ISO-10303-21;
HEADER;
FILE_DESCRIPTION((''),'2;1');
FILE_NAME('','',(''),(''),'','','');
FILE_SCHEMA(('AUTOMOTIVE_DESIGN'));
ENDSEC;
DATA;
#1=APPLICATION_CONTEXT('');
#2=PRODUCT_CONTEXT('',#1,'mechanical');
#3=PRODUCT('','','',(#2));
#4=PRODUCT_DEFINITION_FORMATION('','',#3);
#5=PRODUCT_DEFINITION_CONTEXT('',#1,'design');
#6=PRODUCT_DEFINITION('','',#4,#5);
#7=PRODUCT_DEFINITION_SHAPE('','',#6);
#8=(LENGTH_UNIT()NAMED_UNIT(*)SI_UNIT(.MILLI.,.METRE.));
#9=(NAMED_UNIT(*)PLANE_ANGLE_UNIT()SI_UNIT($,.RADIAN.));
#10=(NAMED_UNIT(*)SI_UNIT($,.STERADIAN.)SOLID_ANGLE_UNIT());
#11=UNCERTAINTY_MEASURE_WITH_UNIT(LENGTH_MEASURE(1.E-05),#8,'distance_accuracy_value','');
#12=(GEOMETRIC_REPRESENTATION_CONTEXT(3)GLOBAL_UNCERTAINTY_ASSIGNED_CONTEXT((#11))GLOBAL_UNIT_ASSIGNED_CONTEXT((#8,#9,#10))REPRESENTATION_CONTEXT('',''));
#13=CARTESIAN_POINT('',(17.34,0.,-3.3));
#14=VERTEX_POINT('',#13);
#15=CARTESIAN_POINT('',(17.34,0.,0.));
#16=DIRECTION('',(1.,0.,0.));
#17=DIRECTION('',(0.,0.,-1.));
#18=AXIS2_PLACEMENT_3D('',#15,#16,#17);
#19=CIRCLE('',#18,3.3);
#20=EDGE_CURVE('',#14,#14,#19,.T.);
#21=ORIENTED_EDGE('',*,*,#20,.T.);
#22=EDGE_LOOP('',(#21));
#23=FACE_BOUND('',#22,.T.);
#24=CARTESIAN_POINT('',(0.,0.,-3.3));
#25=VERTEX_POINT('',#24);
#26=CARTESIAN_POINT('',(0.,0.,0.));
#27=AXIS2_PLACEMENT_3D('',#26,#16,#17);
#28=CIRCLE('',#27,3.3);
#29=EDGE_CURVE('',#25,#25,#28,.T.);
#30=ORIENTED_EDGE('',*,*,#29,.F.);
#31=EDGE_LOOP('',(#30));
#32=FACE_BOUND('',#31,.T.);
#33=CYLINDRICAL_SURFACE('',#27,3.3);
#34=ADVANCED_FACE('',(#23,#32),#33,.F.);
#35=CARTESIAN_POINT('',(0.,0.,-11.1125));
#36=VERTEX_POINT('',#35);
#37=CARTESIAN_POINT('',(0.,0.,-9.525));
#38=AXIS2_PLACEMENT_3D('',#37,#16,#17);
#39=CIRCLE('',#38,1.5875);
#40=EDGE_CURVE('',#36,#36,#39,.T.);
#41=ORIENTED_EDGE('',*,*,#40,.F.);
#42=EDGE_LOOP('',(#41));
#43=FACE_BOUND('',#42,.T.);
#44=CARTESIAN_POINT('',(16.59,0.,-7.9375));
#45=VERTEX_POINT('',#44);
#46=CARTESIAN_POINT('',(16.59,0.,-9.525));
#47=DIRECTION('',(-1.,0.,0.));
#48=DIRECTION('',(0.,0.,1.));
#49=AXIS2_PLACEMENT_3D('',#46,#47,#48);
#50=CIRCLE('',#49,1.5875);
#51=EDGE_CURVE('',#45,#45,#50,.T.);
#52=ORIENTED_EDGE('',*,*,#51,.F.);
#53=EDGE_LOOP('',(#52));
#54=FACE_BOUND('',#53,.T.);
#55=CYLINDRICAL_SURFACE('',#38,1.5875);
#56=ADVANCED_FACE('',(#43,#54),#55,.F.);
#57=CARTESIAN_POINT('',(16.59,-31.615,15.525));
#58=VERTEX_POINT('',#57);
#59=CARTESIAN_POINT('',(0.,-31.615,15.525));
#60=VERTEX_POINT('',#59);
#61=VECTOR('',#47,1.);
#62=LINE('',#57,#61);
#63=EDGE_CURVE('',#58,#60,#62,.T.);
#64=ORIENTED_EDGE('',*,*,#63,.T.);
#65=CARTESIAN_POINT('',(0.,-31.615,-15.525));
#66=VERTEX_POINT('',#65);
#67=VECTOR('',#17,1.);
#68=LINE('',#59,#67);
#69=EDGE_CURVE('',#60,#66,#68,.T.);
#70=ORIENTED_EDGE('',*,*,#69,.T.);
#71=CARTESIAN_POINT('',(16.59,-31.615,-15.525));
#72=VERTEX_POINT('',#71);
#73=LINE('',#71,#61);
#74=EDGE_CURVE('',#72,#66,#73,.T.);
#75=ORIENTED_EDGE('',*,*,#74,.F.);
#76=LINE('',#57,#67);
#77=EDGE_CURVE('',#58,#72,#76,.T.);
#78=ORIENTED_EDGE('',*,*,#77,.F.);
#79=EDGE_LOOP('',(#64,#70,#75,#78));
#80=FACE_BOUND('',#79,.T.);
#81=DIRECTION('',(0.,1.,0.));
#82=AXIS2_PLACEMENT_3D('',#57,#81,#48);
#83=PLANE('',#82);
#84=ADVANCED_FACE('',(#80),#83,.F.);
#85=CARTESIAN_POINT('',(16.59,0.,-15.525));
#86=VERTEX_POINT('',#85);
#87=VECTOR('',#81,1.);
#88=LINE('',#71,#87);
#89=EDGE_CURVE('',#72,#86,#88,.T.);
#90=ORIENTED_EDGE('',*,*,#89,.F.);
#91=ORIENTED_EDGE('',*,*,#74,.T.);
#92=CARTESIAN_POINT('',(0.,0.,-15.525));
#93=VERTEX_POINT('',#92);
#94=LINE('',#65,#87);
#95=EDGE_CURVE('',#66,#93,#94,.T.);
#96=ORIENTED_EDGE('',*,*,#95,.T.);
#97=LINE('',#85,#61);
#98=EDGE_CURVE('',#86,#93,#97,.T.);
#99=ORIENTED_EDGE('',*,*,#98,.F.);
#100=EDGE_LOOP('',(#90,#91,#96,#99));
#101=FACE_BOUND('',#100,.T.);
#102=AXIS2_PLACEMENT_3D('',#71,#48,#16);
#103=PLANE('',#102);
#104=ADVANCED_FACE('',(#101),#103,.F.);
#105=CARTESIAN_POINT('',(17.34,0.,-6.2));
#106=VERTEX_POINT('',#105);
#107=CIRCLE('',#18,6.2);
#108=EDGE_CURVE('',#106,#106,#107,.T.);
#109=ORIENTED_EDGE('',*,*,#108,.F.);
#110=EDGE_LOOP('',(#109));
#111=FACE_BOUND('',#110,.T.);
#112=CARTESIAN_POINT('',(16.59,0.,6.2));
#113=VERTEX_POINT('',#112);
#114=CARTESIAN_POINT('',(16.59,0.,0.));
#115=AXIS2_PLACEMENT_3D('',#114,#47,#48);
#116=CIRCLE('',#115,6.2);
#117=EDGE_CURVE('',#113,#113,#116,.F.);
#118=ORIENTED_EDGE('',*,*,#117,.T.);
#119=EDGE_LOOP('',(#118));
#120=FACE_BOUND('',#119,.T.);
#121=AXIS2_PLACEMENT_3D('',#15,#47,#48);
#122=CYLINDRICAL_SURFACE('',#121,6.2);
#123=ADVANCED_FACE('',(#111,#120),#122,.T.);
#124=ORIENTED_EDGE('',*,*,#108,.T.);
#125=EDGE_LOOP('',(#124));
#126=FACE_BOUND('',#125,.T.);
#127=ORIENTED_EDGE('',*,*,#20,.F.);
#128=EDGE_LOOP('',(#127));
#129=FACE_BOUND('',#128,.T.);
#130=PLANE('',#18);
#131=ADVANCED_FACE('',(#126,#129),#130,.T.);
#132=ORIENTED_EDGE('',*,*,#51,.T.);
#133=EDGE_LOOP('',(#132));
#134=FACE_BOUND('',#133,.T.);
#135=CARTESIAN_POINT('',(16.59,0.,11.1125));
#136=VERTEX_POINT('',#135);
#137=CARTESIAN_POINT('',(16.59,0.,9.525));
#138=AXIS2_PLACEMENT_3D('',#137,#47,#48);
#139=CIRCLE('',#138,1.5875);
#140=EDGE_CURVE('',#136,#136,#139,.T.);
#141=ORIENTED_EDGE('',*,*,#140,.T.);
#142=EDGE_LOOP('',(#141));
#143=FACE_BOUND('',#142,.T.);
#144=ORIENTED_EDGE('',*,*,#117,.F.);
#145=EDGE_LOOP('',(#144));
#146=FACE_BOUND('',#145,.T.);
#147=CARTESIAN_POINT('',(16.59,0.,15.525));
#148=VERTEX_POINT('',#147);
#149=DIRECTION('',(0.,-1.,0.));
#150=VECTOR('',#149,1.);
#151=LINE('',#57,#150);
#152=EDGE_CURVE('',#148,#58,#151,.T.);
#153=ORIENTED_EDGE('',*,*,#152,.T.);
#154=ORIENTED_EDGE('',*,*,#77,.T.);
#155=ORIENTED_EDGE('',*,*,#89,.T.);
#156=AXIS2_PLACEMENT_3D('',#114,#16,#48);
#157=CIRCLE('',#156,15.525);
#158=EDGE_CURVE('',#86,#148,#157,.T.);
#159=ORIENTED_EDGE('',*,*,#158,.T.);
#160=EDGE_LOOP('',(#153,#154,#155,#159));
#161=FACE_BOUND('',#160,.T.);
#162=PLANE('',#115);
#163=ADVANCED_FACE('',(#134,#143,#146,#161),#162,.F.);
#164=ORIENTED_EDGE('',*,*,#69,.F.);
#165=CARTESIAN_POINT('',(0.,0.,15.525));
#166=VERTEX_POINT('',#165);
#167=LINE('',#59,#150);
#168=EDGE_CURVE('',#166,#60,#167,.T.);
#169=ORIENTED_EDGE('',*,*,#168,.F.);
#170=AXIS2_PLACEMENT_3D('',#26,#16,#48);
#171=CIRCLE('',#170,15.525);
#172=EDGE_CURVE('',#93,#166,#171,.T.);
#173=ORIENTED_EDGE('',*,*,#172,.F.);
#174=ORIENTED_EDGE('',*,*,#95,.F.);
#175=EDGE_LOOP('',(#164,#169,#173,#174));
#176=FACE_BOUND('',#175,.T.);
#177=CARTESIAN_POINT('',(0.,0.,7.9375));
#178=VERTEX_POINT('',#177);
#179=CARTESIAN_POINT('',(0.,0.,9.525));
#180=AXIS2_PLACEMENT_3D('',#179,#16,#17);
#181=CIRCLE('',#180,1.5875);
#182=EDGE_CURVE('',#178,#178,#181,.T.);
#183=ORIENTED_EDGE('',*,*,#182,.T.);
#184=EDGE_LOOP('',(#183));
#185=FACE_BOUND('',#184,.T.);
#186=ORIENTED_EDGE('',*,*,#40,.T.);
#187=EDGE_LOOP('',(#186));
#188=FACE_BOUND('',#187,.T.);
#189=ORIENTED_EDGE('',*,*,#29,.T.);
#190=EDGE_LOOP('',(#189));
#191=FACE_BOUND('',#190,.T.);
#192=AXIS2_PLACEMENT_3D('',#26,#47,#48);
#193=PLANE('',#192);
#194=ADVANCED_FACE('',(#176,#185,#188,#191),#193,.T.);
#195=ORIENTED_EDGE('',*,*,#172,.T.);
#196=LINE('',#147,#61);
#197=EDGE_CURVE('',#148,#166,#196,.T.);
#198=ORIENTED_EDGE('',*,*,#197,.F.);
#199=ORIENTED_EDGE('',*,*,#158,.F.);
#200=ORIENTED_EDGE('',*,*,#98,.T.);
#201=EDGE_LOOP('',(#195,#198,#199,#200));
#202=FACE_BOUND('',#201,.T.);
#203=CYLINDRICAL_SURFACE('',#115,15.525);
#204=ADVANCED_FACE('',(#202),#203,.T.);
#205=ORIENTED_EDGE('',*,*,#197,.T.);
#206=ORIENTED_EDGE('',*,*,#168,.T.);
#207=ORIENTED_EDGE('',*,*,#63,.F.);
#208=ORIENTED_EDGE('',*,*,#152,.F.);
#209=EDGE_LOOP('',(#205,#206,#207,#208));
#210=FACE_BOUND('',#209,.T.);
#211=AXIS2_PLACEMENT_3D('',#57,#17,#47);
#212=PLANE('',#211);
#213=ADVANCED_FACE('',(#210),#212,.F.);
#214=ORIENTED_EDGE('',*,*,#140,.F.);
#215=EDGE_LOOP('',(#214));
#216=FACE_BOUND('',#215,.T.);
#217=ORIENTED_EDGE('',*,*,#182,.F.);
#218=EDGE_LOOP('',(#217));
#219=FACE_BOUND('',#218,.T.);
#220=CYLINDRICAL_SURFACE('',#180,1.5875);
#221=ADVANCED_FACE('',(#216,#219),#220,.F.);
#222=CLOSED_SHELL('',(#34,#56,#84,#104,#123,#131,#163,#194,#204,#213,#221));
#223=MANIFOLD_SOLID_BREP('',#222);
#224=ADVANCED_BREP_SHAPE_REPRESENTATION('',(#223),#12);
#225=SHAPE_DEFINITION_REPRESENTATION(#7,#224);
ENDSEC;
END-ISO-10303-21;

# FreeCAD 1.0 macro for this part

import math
import FreeCAD as App
import Part
import Sketcher
from FreeCAD import Vector

doc = App.newDocument("Part")
body = doc.addObject("PartDesign::Body", "Body")

sketch1 = doc.addObject("Sketcher::SketchObject", "Sketch")
body.addObject(sketch1)
sketch1.AttachmentSupport = (doc.YZ_Plane, [""])
sketch1.MapMode = "FlatFace"
sketch1.addGeometry(Part.LineSegment(Vector(-31.615, 15.525, 0), Vector(-31.615, -15.525, 0)), False)
sketch1.addGeometry(Part.LineSegment(Vector(-31.615, -15.525, 0), Vector(0, -15.525, 0)), False)
sketch1.addGeometry(Part.ArcOfCircle(Part.Circle(Vector(0, 0, 0), Vector(0, 0, 1), 15.525), math.radians(-90), math.radians(90)), False)
sketch1.addGeometry(Part.LineSegment(Vector(0, 15.525, 0), Vector(-31.615, 15.525, 0)), False)
sketch1.addConstraint(Sketcher.Constraint("Coincident", 0, 2, 1, 1))
sketch1.addConstraint(Sketcher.Constraint("Tangent", 1, 2, 2, 1))
sketch1.addConstraint(Sketcher.Constraint("Tangent", 2, 2, 3, 1))
sketch1.addConstraint(Sketcher.Constraint("Coincident", 3, 2, 0, 1))
sketch1.addConstraint(Sketcher.Constraint("Vertical", 0))
sketch1.addConstraint(Sketcher.Constraint("Horizontal", 1))
sketch1.addConstraint(Sketcher.Constraint("Horizontal", 3))
sketch1.addConstraint(Sketcher.Constraint("Coincident", 2, 3, -1, 1))
sketch1.addConstraint(Sketcher.Constraint("Radius", 2, 15.525))
sketch1.addConstraint(Sketcher.Constraint("DistanceX", 1, 1, 1, 2, 31.615))
pad1 = doc.addObject("PartDesign::Pad", "Pad")
body.addObject(pad1)
pad1.Profile = sketch1
pad1.Length = 16.59

sketch2 = doc.addObject("Sketcher::SketchObject", "Sketch001")
body.addObject(sketch2)
sketch2.AttachmentSupport = (doc.YZ_Plane, [""])
sketch2.MapMode = "FlatFace"
sketch2.AttachmentOffset = App.Placement(Vector(0, 0, 16.59), App.Rotation())
sketch2.addGeometry(Part.Circle(Vector(0, 0, 0), Vector(0, 0, 1), 6.2), False)
sketch2.addConstraint(Sketcher.Constraint("Coincident", 0, 3, -1, 1))
sketch2.addConstraint(Sketcher.Constraint("Diameter", 0, 12.4))
pad2 = doc.addObject("PartDesign::Pad", "Pad001")
body.addObject(pad2)
pad2.Profile = sketch2
pad2.Length = 0.75

sketch3 = doc.addObject("Sketcher::SketchObject", "Sketch002")
body.addObject(sketch3)
sketch3.AttachmentSupport = (doc.YZ_Plane, [""])
sketch3.MapMode = "FlatFace"
sketch3.AttachmentOffset = App.Placement(Vector(0, 0, 17.34), App.Rotation())
sketch3.addGeometry(Part.Circle(Vector(0, 0, 0), Vector(0, 0, 1), 3.3), False)
sketch3.addGeometry(Part.Circle(Vector(0, 9.525, 0), Vector(0, 0, 1), 1.5875), False)
sketch3.addGeometry(Part.Circle(Vector(0, -9.525, 0), Vector(0, 0, 1), 1.5875), False)
sketch3.addConstraint(Sketcher.Constraint("Coincident", 0, 3, -1, 1))
sketch3.addConstraint(Sketcher.Constraint("Equal", 1, 2))
sketch3.addConstraint(Sketcher.Constraint("Symmetric", 1, 3, 2, 3, -1, 1))
sketch3.addConstraint(Sketcher.Constraint("PointOnObject", 1, 3, -2))
sketch3.addConstraint(Sketcher.Constraint("Diameter", 0, 6.6))
sketch3.addConstraint(Sketcher.Constraint("Diameter", 1, 3.175))
sketch3.addConstraint(Sketcher.Constraint("DistanceY", 2, 3, 1, 3, 19.05))
pocket1 = doc.addObject("PartDesign::Pocket", "Pocket")
body.addObject(pocket1)
pocket1.Profile = sketch3
pocket1.Type = "ThroughAll"

doc.recompute()
